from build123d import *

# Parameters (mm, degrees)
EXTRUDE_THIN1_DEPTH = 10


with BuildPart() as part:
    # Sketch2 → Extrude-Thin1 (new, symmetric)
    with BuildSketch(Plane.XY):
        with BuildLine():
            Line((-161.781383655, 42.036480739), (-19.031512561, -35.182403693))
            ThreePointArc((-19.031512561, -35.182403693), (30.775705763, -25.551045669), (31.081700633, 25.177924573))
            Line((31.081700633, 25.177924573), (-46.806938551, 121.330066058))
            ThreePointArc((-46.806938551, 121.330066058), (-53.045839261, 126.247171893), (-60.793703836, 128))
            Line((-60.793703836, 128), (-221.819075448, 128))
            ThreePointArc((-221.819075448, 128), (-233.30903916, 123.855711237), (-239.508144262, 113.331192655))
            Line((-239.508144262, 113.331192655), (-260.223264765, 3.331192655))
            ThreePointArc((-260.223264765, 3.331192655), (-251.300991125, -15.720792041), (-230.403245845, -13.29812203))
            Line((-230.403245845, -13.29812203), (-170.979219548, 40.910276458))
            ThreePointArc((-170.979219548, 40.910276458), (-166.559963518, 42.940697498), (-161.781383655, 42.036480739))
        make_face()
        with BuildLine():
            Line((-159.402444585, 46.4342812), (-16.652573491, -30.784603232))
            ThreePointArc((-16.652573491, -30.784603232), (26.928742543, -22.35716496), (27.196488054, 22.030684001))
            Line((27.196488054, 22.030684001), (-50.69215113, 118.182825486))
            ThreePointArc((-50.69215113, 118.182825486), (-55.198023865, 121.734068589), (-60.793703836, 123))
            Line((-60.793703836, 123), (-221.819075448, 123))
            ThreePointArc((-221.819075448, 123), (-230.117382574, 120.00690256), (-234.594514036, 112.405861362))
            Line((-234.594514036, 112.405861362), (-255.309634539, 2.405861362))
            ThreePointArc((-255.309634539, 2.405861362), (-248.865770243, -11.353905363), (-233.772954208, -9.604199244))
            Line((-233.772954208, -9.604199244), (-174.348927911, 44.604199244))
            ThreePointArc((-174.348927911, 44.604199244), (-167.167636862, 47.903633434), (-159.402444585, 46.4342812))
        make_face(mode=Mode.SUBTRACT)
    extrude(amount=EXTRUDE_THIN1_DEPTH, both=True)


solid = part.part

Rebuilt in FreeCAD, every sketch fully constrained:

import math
import FreeCAD as App
import Part
import Sketcher

doc = App.newDocument("Part")
params = doc.addObject("Spreadsheet::Sheet", "Params")
for row, (alias, value) in enumerate([
    ("sketch1_radius", "40 mm"),
    ("sketch1_radius2", "18 mm"),
    ("sketch1_radius3", "8 mm"),
    ("pad1_length", "20 mm"),
], start=1):
    params.set(f"A{row}", alias)
    params.set(f"B{row}", "=" + value)
    params.setAlias(f"B{row}", alias)

body = doc.addObject("PartDesign::Body", "Body")

sketch1 = doc.addObject("Sketcher::SketchObject", "Sketch")
body.addObject(sketch1)
sketch1.AttachmentSupport = (doc.XY_Plane, [""])
sketch1.MapMode = "FlatFace"
sketch1.addGeometry([
    Part.LineSegment(App.Vector(-162, 42, 0), App.Vector(-19, -35, 0)),
    Part.ArcOfCircle(Part.Circle(App.Vector(0, 0, 0), App.Vector(0, 0, 1), 40), math.radians(-118), math.radians(39)),
    Part.LineSegment(App.Vector(31, 25, 0), App.Vector(-47, 121, 0)),
    Part.ArcOfCircle(Part.Circle(App.Vector(-61, 110, 0), App.Vector(0, 0, 1), 18), math.radians(39), math.radians(90)),
    Part.LineSegment(App.Vector(-61, 128, 0), App.Vector(-222, 128, 0)),
    Part.ArcOfCircle(Part.Circle(App.Vector(-222, 110, 0), App.Vector(0, 0, 1), 18), math.radians(90), math.radians(169)),
    Part.LineSegment(App.Vector(-240, 113, 0), App.Vector(-260, 3, 0)),
    Part.ArcOfCircle(Part.Circle(App.Vector(-243, 0, 0), App.Vector(0, 0, 1), 18), math.radians(169), math.radians(312)),
    Part.LineSegment(App.Vector(-230, -13, 0), App.Vector(-171, 41, 0)),
    Part.ArcOfCircle(Part.Circle(App.Vector(-166, 35, 0), App.Vector(0, 0, 1), 8), math.radians(62), math.radians(132)),
    Part.LineSegment(App.Vector(-17, -31, 0), App.Vector(-159, 46, 0)),
    Part.ArcOfCircle(Part.Circle(App.Vector(-166, 35, 0), App.Vector(0, 0, 1), 13), math.radians(62), math.radians(132)),
    Part.LineSegment(App.Vector(-174, 45, 0), App.Vector(-234, -10, 0)),
    Part.ArcOfCircle(Part.Circle(App.Vector(-243, 0, 0), App.Vector(0, 0, 1), 13), math.radians(169), math.radians(312)),
    Part.LineSegment(App.Vector(-255, 2, 0), App.Vector(-235, 112, 0)),
    Part.ArcOfCircle(Part.Circle(App.Vector(-222, 110, 0), App.Vector(0, 0, 1), 13), math.radians(90), math.radians(169)),
    Part.LineSegment(App.Vector(-222, 123, 0), App.Vector(-61, 123, 0)),
    Part.ArcOfCircle(Part.Circle(App.Vector(-61, 110, 0), App.Vector(0, 0, 1), 13), math.radians(39), math.radians(90)),
    Part.LineSegment(App.Vector(-51, 118, 0), App.Vector(27, 22, 0)),
    Part.ArcOfCircle(Part.Circle(App.Vector(0, 0, 0), App.Vector(0, 0, 1), 35), math.radians(-118), math.radians(39)),
], False)
sketch1.addConstraint([
    Sketcher.Constraint("Tangent", 0, 2, 1, 1),
    Sketcher.Constraint("Tangent", 1, 2, 2, 1),
    Sketcher.Constraint("Tangent", 2, 2, 3, 1),
    Sketcher.Constraint("Tangent", 3, 2, 4, 1),
    Sketcher.Constraint("Tangent", 4, 2, 5, 1),
    Sketcher.Constraint("Tangent", 5, 2, 6, 1),
    Sketcher.Constraint("Tangent", 6, 2, 7, 1),
    Sketcher.Constraint("Tangent", 7, 2, 8, 1),
    Sketcher.Constraint("Tangent", 8, 2, 9, 2),
    Sketcher.Constraint("Tangent", 9, 1, 0, 1),
    Sketcher.Constraint("Tangent", 10, 2, 11, 1),
    Sketcher.Constraint("Tangent", 11, 2, 12, 1),
    Sketcher.Constraint("Tangent", 12, 2, 13, 2),
    Sketcher.Constraint("Tangent", 13, 1, 14, 1),
    Sketcher.Constraint("Tangent", 14, 2, 15, 2),
    Sketcher.Constraint("Tangent", 15, 1, 16, 1),
    Sketcher.Constraint("Tangent", 16, 2, 17, 2),
    Sketcher.Constraint("Tangent", 17, 1, 18, 1),
    Sketcher.Constraint("Tangent", 18, 2, 19, 2),
    Sketcher.Constraint("Tangent", 19, 1, 10, 1),
    Sketcher.Constraint("Horizontal", 4),
    Sketcher.Constraint("Horizontal", 16),
    Sketcher.Constraint("Coincident", 1, 3, -1, 1),
    Sketcher.Constraint("Coincident", 19, 3, -1, 1),
    Sketcher.Constraint("Coincident", 11, 3, 9, 3),
    Sketcher.Constraint("Coincident", 13, 3, 7, 3),
    Sketcher.Constraint("Coincident", 15, 3, 5, 3),
    Sketcher.Constraint("Coincident", 17, 3, 3, 3),
    Sketcher.Constraint("Equal", 3, 5),
    Sketcher.Constraint("Equal", 5, 7),
    Sketcher.Constraint("Equal", 11, 13),
    Sketcher.Constraint("Equal", 13, 15),
    Sketcher.Constraint("PointOnObject", 7, 3, -1),
    Sketcher.Constraint("Parallel", 0, 10),
    Sketcher.Constraint("Parallel", 8, 12),
    Sketcher.Constraint("Radius", 1, 40.0),
    Sketcher.Constraint("Radius", 3, 18.0),
    Sketcher.Constraint("Radius", 9, 8.0),
    Sketcher.Constraint("DistanceY", -1, 1, 3, 3, 110.0),
    Sketcher.Constraint("DistanceY", -1, 1, 9, 3, 35.0),
    Sketcher.Constraint("DistanceX", 0, 2, 18, 2, 46.228001),
    Sketcher.Constraint("DistanceX", 4, 2, 4, 1, 161.025372),
    Sketcher.Constraint("DistanceY", -1, 1, 11, 2, 44.604199),
    Sketcher.Constraint("Distance", 2, 123.741159),
])
sketch1.setExpression("Constraints[35]", "Params.sketch1_radius")
sketch1.setExpression("Constraints[36]", "Params.sketch1_radius2")
sketch1.setExpression("Constraints[37]", "Params.sketch1_radius3")
pad1 = doc.addObject("PartDesign::Pad", "Pad")
body.addObject(pad1)
pad1.Profile = sketch1
pad1.setExpression("Length", "Params.pad1_length")
pad1.Midplane = True

doc.recompute()
